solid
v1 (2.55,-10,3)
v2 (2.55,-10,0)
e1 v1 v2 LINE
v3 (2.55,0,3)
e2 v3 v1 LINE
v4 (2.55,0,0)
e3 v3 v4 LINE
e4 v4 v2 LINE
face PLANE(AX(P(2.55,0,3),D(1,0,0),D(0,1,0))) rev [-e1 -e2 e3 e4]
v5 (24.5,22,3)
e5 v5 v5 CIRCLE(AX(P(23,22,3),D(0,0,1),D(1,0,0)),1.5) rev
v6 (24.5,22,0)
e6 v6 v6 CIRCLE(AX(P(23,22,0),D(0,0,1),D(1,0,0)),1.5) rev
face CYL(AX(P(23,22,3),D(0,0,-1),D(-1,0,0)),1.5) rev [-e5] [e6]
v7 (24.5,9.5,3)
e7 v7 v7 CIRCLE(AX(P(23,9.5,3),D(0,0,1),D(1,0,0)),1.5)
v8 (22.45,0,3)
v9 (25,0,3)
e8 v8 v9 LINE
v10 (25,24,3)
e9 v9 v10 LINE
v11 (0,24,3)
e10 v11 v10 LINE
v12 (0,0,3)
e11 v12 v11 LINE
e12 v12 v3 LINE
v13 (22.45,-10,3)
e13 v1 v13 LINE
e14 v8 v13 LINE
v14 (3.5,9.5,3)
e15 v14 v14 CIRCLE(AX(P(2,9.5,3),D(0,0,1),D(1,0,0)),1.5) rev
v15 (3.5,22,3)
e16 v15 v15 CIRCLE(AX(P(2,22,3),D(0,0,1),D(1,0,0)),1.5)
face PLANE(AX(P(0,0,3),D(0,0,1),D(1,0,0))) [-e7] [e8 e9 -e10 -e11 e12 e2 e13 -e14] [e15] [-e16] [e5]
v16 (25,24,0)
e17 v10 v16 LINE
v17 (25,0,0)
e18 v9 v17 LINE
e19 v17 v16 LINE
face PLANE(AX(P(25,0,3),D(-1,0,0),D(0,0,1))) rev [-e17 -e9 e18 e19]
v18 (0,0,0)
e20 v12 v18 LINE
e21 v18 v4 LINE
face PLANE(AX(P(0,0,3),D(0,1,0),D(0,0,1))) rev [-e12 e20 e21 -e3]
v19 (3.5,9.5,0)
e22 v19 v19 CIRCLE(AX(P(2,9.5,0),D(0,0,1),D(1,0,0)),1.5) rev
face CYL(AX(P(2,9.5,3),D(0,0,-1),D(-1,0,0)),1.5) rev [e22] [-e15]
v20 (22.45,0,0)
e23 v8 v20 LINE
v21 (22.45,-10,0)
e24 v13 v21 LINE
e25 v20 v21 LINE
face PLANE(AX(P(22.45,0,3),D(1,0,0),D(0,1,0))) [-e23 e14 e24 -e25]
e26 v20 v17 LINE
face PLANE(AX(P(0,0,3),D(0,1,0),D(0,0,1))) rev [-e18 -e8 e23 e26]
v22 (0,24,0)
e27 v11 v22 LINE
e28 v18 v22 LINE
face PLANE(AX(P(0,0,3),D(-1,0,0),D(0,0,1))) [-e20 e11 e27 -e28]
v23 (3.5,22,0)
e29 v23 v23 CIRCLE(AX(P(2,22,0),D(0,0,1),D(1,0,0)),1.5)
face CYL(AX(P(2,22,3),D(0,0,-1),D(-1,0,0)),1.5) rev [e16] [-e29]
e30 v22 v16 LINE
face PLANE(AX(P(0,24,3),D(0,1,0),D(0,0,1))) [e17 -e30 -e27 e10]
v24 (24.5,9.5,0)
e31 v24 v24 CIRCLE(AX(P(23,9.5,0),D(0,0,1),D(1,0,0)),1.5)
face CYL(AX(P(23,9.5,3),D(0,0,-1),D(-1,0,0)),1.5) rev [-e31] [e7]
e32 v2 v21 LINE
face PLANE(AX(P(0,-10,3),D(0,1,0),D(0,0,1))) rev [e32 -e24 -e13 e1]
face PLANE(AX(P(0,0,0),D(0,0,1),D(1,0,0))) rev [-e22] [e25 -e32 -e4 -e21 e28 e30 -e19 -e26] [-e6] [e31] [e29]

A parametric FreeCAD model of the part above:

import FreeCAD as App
import Part
import Sketcher

V = App.Vector


def add_polygon(sketch, points):
    """Adds a closed chain of lines whose ends are joined by coincident constraints."""
    first, n = sketch.GeometryCount, len(points)
    for a, b in zip(points, points[1:] + points[:1]):
        sketch.addGeometry(Part.LineSegment(App.Vector(*a, 0), App.Vector(*b, 0)), False)
    for i in range(n):
        sketch.addConstraint(Sketcher.Constraint("Coincident", first + i, 2, first + (i + 1) % n, 1))

doc = App.newDocument("Part")
body = doc.addObject("PartDesign::Body", "Body")

# Sketch on XY plane
sketch1 = body.newObject("Sketcher::SketchObject", "Sketch")
sketch1.AttachmentSupport = (doc.getObject("XY_Plane"), [""])
sketch1.MapMode = "FlatFace"
add_polygon(sketch1, [(0, 24), (0, 0), (2.5, 0), (2.5, -10), (22.4, -10), (22.4, 0), (25, 0), (25, 24)])  # lines 0-7
sketch1.addGeometry(Part.Circle(V(2, 9.5, 0), V(0, 0, 1), 1.5), False)  # 8
sketch1.addGeometry(Part.Circle(V(23, 9.5, 0), V(0, 0, 1), 1.5), False)  # 9
sketch1.addGeometry(Part.Circle(V(2, 22, 0), V(0, 0, 1), 1.5), False)  # 10
sketch1.addGeometry(Part.Circle(V(23, 22, 0), V(0, 0, 1), 1.5), False)  # 11
sketch1.addConstraint([
    Sketcher.Constraint("Vertical", 0),
    Sketcher.Constraint("Horizontal", 1),
    Sketcher.Constraint("Vertical", 2),
    Sketcher.Constraint("Horizontal", 3),
    Sketcher.Constraint("Vertical", 4),
    Sketcher.Constraint("Horizontal", 5),
    Sketcher.Constraint("Vertical", 6),
    Sketcher.Constraint("Horizontal", 7),
    Sketcher.Constraint("Coincident", 0, 2, -1, 1),
    Sketcher.Constraint("Equal", 8, 9),
    Sketcher.Constraint("Equal", 9, 10),
    Sketcher.Constraint("Equal", 10, 11),
    Sketcher.Constraint("PointOnObject", 4, 2, -1),
    Sketcher.Constraint("Horizontal", 8, 3, 9, 3),
    Sketcher.Constraint("Horizontal", 10, 3, 11, 3),
    Sketcher.Constraint("Vertical", 8, 3, 10, 3),
    Sketcher.Constraint("Vertical", 9, 3, 11, 3),
    Sketcher.Constraint("Equal", 1, 5),
    Sketcher.Constraint("Diameter", 8, 3.0),
    Sketcher.Constraint("DistanceX", 7, 2, 7, 1, 25.0),
    Sketcher.Constraint("DistanceY", 0, 2, 0, 1, 24.0),
    Sketcher.Constraint("DistanceY", 2, 2, 2, 1, 10.0),
    Sketcher.Constraint("DistanceX", 3, 1, 3, 2, 19.9),
    Sketcher.Constraint("DistanceX", -1, 1, 8, 3, 2.0),
    Sketcher.Constraint("DistanceX", -1, 1, 9, 3, 23.0),
    Sketcher.Constraint("DistanceY", -1, 1, 10, 3, 22.0),
    Sketcher.Constraint("DistanceY", -1, 1, 8, 3, 9.5),
])
pad1 = body.newObject("PartDesign::Pad", "Pad")
pad1.Profile = sketch1
pad1.Length = 3

doc.recompute()
